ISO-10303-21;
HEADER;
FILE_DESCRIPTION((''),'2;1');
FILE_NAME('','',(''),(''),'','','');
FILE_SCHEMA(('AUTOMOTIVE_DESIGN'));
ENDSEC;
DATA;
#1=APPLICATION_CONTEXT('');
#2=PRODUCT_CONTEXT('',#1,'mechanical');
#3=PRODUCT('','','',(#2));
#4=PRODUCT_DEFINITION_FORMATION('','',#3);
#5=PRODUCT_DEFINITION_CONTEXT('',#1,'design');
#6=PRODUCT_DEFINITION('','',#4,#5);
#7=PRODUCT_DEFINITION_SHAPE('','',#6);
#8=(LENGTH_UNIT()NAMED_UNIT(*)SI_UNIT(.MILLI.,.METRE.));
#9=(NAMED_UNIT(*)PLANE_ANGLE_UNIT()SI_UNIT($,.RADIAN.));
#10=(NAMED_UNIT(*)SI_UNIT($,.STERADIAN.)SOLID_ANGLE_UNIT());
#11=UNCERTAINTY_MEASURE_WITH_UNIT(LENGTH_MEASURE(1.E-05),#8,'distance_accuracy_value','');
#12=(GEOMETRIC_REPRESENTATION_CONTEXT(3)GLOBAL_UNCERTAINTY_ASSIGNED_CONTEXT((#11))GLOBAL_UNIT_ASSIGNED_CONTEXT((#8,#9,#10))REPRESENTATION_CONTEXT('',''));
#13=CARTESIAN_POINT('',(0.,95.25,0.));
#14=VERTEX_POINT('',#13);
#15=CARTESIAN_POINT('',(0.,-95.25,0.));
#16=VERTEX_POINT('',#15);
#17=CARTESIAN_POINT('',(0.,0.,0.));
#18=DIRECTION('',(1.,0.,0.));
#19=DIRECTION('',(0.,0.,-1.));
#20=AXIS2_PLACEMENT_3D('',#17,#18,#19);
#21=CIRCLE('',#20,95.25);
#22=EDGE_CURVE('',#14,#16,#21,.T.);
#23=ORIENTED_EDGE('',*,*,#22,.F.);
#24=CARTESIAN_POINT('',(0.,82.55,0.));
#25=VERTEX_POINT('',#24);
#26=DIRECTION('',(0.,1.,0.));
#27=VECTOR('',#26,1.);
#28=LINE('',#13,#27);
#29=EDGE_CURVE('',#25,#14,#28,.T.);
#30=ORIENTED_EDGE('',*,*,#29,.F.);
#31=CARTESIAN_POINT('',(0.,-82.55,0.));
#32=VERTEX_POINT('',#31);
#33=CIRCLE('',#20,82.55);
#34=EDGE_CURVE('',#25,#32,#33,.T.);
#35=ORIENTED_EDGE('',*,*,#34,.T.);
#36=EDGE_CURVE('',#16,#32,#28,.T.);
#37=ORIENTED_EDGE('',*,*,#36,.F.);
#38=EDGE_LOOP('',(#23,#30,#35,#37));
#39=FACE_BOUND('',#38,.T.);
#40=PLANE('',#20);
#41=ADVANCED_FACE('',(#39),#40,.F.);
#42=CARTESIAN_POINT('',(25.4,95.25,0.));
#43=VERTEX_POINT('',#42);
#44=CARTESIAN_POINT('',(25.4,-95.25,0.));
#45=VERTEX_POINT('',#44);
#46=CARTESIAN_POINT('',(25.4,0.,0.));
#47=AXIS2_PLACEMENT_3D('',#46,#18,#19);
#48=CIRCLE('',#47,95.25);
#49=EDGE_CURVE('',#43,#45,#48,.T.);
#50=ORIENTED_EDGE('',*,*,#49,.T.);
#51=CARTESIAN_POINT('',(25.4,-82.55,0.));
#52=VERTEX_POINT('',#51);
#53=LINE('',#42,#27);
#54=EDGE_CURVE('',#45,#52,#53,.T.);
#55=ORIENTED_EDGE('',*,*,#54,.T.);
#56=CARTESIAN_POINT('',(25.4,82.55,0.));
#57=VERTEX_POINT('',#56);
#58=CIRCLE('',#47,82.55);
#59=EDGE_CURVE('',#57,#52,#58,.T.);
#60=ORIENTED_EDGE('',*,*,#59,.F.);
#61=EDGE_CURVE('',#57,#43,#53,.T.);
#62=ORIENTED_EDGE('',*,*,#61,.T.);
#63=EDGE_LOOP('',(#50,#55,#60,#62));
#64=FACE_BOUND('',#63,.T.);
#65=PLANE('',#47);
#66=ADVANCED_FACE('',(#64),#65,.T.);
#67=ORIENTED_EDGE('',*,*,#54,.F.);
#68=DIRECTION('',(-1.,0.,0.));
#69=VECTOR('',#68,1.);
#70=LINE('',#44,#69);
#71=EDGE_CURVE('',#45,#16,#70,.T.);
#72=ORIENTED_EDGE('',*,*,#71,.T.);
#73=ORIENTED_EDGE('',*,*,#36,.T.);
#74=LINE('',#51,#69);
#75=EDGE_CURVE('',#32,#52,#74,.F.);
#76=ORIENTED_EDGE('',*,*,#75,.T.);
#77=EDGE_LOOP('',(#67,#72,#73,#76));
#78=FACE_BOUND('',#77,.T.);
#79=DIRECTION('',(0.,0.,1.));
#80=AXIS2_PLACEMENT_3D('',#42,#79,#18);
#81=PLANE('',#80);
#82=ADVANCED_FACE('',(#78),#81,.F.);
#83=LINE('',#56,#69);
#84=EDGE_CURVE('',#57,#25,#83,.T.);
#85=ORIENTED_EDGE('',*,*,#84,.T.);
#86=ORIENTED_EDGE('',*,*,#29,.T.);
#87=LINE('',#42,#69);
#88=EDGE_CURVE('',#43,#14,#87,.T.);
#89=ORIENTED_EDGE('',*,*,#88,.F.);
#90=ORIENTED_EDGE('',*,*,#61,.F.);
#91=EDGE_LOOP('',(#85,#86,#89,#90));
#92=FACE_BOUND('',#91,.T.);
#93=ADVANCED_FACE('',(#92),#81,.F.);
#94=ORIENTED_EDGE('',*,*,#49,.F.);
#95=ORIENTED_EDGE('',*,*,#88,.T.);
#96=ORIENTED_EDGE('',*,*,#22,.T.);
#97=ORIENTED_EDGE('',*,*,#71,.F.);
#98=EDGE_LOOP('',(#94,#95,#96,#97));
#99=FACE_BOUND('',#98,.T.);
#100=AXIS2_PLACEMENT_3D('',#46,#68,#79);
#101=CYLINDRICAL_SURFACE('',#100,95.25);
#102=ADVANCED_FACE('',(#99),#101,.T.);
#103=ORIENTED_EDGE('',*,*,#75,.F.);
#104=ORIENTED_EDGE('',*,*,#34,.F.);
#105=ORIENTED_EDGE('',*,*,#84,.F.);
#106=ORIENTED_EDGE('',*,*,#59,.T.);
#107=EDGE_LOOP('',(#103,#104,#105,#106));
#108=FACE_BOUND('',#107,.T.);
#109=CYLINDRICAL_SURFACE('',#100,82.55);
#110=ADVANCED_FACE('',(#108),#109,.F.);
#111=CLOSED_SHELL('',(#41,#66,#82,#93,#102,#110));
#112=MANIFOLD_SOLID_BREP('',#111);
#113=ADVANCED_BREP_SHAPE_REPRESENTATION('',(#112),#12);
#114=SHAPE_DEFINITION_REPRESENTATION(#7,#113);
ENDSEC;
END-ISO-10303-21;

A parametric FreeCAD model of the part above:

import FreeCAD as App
import Part
import Sketcher
from FreeCAD import Vector
Q = App.Units.Quantity


def add_polygon(sketch, points):
    """Adds a closed chain of lines whose ends are joined by coincident constraints."""
    first, n = sketch.GeometryCount, len(points)
    for a, b in zip(points, points[1:] + points[:1]):
        sketch.addGeometry(Part.LineSegment(App.Vector(*a, 0), App.Vector(*b, 0)), False)
    for i in range(n):
        sketch.addConstraint(Sketcher.Constraint("Coincident", first + i, 2, first + (i + 1) % n, 1))

doc = App.newDocument("Part")
body = doc.addObject("PartDesign::Body", "Body")

# Sketch on YZ plane
sketch1 = body.newObject("Sketcher::SketchObject", "Sketch")
sketch1.AttachmentSupport = (doc.getObject("YZ_Plane"), [""])
sketch1.MapMode = "FlatFace"
sketch1.addGeometry(Part.Circle(Vector(0, 0, 0), Vector(0, 0, 1), 95.25), False)
sketch1.addGeometry(Part.Circle(Vector(0, 0, 0), Vector(0, 0, 1), 82.55), False)
sketch1.addConstraint(Sketcher.Constraint("Coincident", 0, 3, -1, 1))
sketch1.addConstraint(Sketcher.Constraint("Coincident", 1, 3, -1, 1))
sketch1.addConstraint(Sketcher.Constraint("Diameter", 0, Q("7.5 in")))
sketch1.addConstraint(Sketcher.Constraint("Diameter", 1, Q("6.5 in")))
pad1 = body.newObject("PartDesign::Pad", "Pad")
pad1.Profile = sketch1
pad1.Length = Q("1 in")

# Sketch on YZ plane
sketch2 = body.newObject("Sketcher::SketchObject", "Sketch001")
sketch2.AttachmentSupport = (doc.getObject("YZ_Plane"), [""])
sketch2.MapMode = "FlatFace"
add_polygon(sketch2, [(95.25, -95.25), (-95.25, -95.25), (-95.25, 0), (95.25, 0)])  # lines 0-3
sketch2.addConstraint(Sketcher.Constraint("Horizontal", 0))
sketch2.addConstraint(Sketcher.Constraint("Vertical", 1))
sketch2.addConstraint(Sketcher.Constraint("Horizontal", 2))
sketch2.addConstraint(Sketcher.Constraint("Vertical", 3))
sketch2.addConstraint(Sketcher.Constraint("Symmetric", 1, 2, 2, 2, -1, 1))
sketch2.addConstraint(Sketcher.Constraint("DistanceX", 0, 2, 0, 1, Q("7.5 in")))
sketch2.addConstraint(Sketcher.Constraint("DistanceY", 1, 1, 1, 2, Q("3.75 in")))
pocket1 = body.newObject("PartDesign::Pocket", "Pocket")
pocket1.Profile = sketch2
pocket1.Length = Q("1 in")
pocket1.Reversed = True

doc.recompute()
